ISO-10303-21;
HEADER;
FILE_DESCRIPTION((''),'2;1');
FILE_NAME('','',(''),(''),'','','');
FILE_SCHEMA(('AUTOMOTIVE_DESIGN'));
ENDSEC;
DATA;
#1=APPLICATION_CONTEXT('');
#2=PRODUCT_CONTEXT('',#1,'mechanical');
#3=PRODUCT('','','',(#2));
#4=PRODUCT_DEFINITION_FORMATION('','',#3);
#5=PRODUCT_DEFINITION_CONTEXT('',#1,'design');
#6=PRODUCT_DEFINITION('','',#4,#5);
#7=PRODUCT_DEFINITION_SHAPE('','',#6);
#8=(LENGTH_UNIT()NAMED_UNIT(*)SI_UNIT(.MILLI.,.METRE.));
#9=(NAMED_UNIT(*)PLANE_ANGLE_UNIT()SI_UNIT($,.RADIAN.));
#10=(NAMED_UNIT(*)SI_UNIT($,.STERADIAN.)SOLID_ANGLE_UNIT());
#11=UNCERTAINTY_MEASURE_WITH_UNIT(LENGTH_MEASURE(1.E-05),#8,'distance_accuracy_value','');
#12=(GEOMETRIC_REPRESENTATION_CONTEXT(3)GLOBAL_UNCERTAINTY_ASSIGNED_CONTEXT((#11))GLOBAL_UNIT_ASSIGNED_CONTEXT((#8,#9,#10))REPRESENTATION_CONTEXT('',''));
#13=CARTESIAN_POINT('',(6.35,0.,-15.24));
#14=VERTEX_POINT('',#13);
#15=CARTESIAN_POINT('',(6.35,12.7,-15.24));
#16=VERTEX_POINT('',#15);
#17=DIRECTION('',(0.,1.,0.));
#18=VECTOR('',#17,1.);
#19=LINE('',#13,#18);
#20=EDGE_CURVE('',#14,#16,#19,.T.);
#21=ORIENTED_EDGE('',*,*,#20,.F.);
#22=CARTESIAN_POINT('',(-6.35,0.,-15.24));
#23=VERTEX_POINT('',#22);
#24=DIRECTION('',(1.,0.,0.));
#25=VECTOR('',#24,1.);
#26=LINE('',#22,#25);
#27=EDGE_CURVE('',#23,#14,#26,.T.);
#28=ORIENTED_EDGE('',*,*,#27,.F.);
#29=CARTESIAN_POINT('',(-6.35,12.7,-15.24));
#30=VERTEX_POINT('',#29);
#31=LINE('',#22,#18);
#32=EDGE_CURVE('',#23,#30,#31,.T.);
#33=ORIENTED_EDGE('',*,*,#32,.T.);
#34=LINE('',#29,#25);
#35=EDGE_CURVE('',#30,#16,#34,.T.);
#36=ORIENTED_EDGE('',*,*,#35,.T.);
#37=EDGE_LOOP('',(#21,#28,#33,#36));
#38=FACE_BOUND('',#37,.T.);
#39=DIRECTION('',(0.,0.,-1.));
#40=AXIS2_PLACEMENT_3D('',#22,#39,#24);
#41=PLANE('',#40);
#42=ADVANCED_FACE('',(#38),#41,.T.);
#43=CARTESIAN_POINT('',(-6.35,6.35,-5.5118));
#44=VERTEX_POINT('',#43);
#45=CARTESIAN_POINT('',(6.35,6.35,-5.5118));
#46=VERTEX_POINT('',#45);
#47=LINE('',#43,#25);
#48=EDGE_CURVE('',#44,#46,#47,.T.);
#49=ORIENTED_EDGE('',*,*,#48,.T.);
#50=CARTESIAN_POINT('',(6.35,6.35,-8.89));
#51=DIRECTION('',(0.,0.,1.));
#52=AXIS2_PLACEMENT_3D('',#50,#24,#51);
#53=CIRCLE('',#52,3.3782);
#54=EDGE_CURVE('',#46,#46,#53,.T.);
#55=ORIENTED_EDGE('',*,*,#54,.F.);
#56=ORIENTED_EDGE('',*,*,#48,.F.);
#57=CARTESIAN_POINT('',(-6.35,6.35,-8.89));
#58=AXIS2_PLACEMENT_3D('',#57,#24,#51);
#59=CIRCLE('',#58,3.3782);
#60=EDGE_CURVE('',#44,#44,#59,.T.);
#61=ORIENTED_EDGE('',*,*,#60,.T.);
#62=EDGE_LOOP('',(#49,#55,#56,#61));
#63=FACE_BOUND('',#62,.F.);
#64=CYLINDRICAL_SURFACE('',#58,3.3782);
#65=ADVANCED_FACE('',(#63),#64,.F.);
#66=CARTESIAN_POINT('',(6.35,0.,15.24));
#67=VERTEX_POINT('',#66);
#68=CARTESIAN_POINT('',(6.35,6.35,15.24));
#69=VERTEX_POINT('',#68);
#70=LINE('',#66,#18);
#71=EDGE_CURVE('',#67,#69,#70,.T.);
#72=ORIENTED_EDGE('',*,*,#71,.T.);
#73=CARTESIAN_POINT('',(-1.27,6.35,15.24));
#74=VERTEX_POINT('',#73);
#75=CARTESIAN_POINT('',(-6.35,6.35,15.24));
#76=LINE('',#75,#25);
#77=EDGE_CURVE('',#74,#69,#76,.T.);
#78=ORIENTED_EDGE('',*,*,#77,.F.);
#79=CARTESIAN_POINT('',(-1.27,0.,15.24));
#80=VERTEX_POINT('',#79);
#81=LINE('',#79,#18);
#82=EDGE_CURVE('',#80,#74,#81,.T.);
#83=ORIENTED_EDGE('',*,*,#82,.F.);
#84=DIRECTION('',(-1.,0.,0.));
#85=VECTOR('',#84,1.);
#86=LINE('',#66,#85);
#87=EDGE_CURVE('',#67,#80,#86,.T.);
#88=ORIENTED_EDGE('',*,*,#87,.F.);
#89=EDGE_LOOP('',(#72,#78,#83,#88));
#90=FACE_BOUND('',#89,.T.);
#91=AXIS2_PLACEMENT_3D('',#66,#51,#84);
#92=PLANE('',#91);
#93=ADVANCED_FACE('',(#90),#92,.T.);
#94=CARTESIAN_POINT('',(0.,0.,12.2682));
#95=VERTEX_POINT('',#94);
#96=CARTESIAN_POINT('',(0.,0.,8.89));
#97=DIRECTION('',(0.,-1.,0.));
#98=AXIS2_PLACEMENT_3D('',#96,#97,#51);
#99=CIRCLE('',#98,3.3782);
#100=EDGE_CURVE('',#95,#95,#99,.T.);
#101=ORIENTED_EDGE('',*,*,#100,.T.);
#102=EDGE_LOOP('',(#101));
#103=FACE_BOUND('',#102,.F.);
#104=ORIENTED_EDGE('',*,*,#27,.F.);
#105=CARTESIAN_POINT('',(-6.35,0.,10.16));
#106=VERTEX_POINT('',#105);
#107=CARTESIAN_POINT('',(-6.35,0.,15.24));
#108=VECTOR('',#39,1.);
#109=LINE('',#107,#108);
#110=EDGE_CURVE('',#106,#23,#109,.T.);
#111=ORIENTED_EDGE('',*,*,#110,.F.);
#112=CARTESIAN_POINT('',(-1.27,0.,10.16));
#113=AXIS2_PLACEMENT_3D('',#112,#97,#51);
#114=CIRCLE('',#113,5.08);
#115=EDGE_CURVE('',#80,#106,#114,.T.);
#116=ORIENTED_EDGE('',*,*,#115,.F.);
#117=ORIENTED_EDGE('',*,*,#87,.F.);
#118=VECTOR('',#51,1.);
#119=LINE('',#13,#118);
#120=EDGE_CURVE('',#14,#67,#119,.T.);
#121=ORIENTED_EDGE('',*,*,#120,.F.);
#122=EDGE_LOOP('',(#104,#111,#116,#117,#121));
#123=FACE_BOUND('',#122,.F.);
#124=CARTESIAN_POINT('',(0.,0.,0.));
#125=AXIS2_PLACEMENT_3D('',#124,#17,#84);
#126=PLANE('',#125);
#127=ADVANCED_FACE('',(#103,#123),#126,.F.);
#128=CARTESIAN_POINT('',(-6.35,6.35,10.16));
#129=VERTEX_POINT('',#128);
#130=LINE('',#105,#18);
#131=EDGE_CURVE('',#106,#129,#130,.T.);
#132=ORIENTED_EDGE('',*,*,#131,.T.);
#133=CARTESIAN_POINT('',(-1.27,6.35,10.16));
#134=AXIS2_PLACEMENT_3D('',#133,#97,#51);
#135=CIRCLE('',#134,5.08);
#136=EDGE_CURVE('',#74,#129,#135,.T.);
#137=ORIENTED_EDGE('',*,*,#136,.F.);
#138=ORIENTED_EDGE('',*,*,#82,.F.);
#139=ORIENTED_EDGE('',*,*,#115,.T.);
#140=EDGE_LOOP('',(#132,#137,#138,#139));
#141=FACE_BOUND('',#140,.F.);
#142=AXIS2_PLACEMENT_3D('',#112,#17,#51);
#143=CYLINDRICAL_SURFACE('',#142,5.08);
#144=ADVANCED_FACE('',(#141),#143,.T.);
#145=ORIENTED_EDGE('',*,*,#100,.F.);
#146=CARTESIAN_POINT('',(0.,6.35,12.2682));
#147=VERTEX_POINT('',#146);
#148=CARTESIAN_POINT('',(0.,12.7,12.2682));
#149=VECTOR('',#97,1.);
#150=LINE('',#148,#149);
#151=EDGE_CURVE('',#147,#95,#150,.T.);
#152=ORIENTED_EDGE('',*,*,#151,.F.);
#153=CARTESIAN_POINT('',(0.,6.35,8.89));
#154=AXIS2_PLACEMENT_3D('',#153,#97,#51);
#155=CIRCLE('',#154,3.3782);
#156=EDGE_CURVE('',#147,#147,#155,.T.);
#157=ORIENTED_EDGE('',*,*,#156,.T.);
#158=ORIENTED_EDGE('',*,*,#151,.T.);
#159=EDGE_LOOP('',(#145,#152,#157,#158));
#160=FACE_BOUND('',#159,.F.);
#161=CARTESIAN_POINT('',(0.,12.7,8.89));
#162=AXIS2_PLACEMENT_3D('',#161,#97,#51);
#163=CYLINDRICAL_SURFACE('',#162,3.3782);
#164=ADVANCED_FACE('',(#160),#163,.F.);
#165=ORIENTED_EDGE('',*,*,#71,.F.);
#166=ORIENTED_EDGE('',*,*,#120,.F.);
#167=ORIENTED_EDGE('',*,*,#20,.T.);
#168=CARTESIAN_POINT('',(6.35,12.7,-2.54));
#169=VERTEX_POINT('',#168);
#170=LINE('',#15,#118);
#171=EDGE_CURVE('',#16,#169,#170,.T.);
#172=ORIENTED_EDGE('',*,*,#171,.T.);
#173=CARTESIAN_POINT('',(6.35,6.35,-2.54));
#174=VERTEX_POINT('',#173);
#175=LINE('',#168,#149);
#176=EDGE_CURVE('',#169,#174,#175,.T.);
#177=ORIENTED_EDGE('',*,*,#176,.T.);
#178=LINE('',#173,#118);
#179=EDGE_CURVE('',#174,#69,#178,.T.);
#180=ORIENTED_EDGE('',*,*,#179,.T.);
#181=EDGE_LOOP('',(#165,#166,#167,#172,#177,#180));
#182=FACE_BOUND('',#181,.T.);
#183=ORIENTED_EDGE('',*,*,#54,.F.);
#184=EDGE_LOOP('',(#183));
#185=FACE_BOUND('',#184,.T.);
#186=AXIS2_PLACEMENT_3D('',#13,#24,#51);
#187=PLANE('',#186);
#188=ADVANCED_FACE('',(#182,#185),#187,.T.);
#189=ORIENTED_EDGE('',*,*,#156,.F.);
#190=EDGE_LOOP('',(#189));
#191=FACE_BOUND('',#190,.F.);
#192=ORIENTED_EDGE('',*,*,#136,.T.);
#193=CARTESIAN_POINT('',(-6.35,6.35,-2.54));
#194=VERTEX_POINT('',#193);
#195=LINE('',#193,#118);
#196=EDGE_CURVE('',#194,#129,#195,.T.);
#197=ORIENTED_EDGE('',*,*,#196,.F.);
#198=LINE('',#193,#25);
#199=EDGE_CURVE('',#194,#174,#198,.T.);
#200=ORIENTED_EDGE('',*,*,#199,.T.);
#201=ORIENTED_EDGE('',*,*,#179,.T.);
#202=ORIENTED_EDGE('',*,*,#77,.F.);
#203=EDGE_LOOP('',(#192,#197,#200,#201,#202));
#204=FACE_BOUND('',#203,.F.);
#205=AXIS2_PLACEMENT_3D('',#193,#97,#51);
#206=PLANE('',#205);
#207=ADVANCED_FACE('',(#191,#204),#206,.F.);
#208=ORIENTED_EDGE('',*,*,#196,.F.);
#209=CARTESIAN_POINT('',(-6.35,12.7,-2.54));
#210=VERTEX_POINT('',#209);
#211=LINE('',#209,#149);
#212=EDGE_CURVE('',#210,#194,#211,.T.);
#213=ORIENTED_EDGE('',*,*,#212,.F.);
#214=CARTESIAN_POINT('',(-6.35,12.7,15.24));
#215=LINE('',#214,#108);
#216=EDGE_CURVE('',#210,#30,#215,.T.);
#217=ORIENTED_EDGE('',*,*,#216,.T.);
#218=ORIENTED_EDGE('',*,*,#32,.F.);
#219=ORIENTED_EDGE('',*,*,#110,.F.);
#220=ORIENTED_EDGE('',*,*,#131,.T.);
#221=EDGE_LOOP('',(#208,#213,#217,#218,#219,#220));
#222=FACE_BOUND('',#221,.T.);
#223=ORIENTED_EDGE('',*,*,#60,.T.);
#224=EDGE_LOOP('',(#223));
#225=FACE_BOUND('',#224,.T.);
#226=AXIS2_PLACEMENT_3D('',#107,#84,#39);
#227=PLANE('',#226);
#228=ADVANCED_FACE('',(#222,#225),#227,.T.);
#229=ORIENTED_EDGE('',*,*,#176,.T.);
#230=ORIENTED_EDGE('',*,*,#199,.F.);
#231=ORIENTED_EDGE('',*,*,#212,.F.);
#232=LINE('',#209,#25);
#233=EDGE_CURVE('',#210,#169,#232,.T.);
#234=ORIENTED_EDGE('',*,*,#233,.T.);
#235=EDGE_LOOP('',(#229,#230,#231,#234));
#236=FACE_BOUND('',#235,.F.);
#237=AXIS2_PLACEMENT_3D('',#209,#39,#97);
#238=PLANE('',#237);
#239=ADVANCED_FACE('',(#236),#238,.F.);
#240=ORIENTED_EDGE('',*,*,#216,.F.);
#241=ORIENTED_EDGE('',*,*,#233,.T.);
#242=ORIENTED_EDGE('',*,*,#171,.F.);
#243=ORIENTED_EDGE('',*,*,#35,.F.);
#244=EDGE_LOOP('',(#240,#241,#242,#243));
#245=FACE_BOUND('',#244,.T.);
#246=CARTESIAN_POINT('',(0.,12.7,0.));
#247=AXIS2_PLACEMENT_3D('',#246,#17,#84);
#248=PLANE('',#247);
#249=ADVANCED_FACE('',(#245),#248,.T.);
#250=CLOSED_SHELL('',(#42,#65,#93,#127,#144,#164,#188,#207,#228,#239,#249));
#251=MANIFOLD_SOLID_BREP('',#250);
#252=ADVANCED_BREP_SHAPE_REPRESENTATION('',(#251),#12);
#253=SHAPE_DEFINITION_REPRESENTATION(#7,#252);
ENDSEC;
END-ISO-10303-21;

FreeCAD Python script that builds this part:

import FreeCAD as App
import Part
import Sketcher
from FreeCAD import Vector
Q = App.Units.Quantity


def edges_at(feature, points):
    """Names of the edges that pass closest to the given points."""
    edges = feature.Shape.Edges
    near = lambda p: min(range(len(edges)), key=lambda i: edges[i].distToShape(Part.Vertex(*p))[0])
    return sorted({f"Edge{near(p) + 1}" for p in points})

doc = App.newDocument("Part")
params = doc.addObject("Spreadsheet::Sheet", "Params")
for row, (alias, value) in enumerate([
    ("sketch1_width", "0.5 in"),
    ("sketch1_height", "1.2 in"),
    ("pad1_length", "0.5 in"),
    ("sketch2_diameter", "0.266 in"),
    ("hole_diameter", "0.266 in"),
    ("sketch3_diameter", "0.266 in"),
    ("hole2_diameter", "0.266 in"),
    ("sketch4_width", "0.25 in"),
    ("sketch4_height", "0.7 in"),
    ("pocket1_length", "0.5 in"),
    ("fillet_radius", "0.2 in"),
], start=1):
    params.set(f"A{row}", alias)
    params.set(f"B{row}", "=" + value)
    params.setAlias(f"B{row}", alias)

body = doc.addObject("PartDesign::Body", "Body")

# Sketch on XZ plane
sketch1 = body.newObject("Sketcher::SketchObject", "Sketch")
sketch1.AttachmentSupport = (doc.getObject("XZ_Plane"), [""])
sketch1.MapMode = "FlatFace"
sketch1.addGeometry([
    Part.LineSegment(Vector(-6, 15, 0), Vector(6, 15, 0)),
    Part.LineSegment(Vector(6, 15, 0), Vector(6, -15, 0)),
    Part.LineSegment(Vector(6, -15, 0), Vector(-6, -15, 0)),
    Part.LineSegment(Vector(-6, -15, 0), Vector(-6, 15, 0)),
], False)
sketch1.addConstraint([
    Sketcher.Constraint("Coincident", 0, 2, 1, 1),
    Sketcher.Constraint("Coincident", 1, 2, 2, 1),
    Sketcher.Constraint("Coincident", 2, 2, 3, 1),
    Sketcher.Constraint("Coincident", 3, 2, 0, 1),
    Sketcher.Constraint("Horizontal", 0),
    Sketcher.Constraint("Vertical", 1),
    Sketcher.Constraint("Horizontal", 2),
    Sketcher.Constraint("Vertical", 3),
    Sketcher.Constraint("Symmetric", 0, 2, 2, 2, -1, 1),
    Sketcher.Constraint("DistanceX", 0, 1, 0, 2, Q("0.5 in")),
    Sketcher.Constraint("DistanceY", 1, 2, 1, 1, Q("1.2 in")),
])
sketch1.setExpression("Constraints[9]", "Params.sketch1_width")
sketch1.setExpression("Constraints[10]", "Params.sketch1_height")
pad1 = body.newObject("PartDesign::Pad", "Pad")
pad1.Profile = sketch1
pad1.setExpression("Length", "Params.pad1_length")
pad1.Reversed = True

# Sketch on XZ plane
sketch2 = body.newObject("Sketcher::SketchObject", "Sketch001")
sketch2.AttachmentSupport = (doc.getObject("XZ_Plane"), [""])
sketch2.MapMode = "FlatFace"
sketch2.AttachmentOffset = App.Placement(Vector(0, 0, -0.5 * 25.4), App.Rotation())
sketch2.addGeometry(Part.Circle(Vector(0, 8.9, 0), Vector(0, 0, 1), 3.4), False)
sketch2.addConstraint([
    Sketcher.Constraint("PointOnObject", 0, 3, -2),
    Sketcher.Constraint("Diameter", 0, Q("0.266 in")),
    Sketcher.Constraint("DistanceY", -1, 1, 0, 3, Q("0.35 in")),
])
sketch2.setExpression("Constraints[1]", "Params.sketch2_diameter")
doc.recompute()
hole = body.newObject("PartDesign::Hole", "Hole")
hole.Profile = sketch2
hole.ThreadType = "None"
hole.setExpression("Diameter", "Params.hole_diameter")
hole.DepthType = "ThroughAll"
hole.Reversed = True

# Sketch on YZ plane
sketch3 = body.newObject("Sketcher::SketchObject", "Sketch002")
sketch3.AttachmentSupport = (doc.getObject("YZ_Plane"), [""])
sketch3.MapMode = "FlatFace"
sketch3.AttachmentOffset = App.Placement(Vector(0, 0, -0.25 * 25.4), App.Rotation())
sketch3.addGeometry(Part.Circle(Vector(6.3, -8.9, 0), Vector(0, 0, 1), 3.4), False)
sketch3.addConstraint([
    Sketcher.Constraint("Diameter", 0, Q("0.266 in")),
    Sketcher.Constraint("DistanceX", -1, 1, 0, 3, Q("0.25 in")),
    Sketcher.Constraint("DistanceY", 0, 3, -1, 1, Q("0.35 in")),
])
sketch3.setExpression("Constraints[0]", "Params.sketch3_diameter")
doc.recompute()
hole2 = body.newObject("PartDesign::Hole", "Hole001")
hole2.Profile = sketch3
hole2.ThreadType = "None"
hole2.setExpression("Diameter", "Params.hole2_diameter")
hole2.DepthType = "ThroughAll"
hole2.Reversed = True

# Sketch on YZ plane
sketch4 = body.newObject("Sketcher::SketchObject", "Sketch003")
sketch4.AttachmentSupport = (doc.getObject("YZ_Plane"), [""])
sketch4.MapMode = "FlatFace"
sketch4.AttachmentOffset = App.Placement(Vector(0, 0, -0.25 * 25.4), App.Rotation())
sketch4.addGeometry([
    Part.LineSegment(Vector(6, -3, 0), Vector(6, 15, 0)),
    Part.LineSegment(Vector(6, 15, 0), Vector(13, 15, 0)),
    Part.LineSegment(Vector(13, 15, 0), Vector(13, -3, 0)),
    Part.LineSegment(Vector(13, -3, 0), Vector(6, -3, 0)),
], False)
sketch4.addConstraint([
    Sketcher.Constraint("Coincident", 0, 2, 1, 1),
    Sketcher.Constraint("Coincident", 1, 2, 2, 1),
    Sketcher.Constraint("Coincident", 2, 2, 3, 1),
    Sketcher.Constraint("Coincident", 3, 2, 0, 1),
    Sketcher.Constraint("Vertical", 0),
    Sketcher.Constraint("Horizontal", 1),
    Sketcher.Constraint("Vertical", 2),
    Sketcher.Constraint("Horizontal", 3),
    Sketcher.Constraint("DistanceX", 1, 1, 1, 2, Q("0.25 in")),
    Sketcher.Constraint("DistanceX", -1, 1, 1, 2, Q("0.5 in")),
    Sketcher.Constraint("DistanceY", 0, 1, 0, 2, Q("0.7 in")),
    Sketcher.Constraint("DistanceY", -1, 1, 0, 2, Q("0.6 in")),
])
sketch4.setExpression("Constraints[8]", "Params.sketch4_width")
sketch4.setExpression("Constraints[10]", "Params.sketch4_height")
pocket1 = body.newObject("PartDesign::Pocket", "Pocket")
pocket1.Profile = sketch4
pocket1.setExpression("Length", "Params.pocket1_length")
pocket1.Reversed = True
doc.recompute()

fillet = body.newObject("PartDesign::Fillet", "Fillet")
fillet.Base = (pocket1, edges_at(pocket1, [(-6.35, 3.175, 15.24)]))
fillet.setExpression("Radius", "Params.fillet_radius")

doc.recompute()
